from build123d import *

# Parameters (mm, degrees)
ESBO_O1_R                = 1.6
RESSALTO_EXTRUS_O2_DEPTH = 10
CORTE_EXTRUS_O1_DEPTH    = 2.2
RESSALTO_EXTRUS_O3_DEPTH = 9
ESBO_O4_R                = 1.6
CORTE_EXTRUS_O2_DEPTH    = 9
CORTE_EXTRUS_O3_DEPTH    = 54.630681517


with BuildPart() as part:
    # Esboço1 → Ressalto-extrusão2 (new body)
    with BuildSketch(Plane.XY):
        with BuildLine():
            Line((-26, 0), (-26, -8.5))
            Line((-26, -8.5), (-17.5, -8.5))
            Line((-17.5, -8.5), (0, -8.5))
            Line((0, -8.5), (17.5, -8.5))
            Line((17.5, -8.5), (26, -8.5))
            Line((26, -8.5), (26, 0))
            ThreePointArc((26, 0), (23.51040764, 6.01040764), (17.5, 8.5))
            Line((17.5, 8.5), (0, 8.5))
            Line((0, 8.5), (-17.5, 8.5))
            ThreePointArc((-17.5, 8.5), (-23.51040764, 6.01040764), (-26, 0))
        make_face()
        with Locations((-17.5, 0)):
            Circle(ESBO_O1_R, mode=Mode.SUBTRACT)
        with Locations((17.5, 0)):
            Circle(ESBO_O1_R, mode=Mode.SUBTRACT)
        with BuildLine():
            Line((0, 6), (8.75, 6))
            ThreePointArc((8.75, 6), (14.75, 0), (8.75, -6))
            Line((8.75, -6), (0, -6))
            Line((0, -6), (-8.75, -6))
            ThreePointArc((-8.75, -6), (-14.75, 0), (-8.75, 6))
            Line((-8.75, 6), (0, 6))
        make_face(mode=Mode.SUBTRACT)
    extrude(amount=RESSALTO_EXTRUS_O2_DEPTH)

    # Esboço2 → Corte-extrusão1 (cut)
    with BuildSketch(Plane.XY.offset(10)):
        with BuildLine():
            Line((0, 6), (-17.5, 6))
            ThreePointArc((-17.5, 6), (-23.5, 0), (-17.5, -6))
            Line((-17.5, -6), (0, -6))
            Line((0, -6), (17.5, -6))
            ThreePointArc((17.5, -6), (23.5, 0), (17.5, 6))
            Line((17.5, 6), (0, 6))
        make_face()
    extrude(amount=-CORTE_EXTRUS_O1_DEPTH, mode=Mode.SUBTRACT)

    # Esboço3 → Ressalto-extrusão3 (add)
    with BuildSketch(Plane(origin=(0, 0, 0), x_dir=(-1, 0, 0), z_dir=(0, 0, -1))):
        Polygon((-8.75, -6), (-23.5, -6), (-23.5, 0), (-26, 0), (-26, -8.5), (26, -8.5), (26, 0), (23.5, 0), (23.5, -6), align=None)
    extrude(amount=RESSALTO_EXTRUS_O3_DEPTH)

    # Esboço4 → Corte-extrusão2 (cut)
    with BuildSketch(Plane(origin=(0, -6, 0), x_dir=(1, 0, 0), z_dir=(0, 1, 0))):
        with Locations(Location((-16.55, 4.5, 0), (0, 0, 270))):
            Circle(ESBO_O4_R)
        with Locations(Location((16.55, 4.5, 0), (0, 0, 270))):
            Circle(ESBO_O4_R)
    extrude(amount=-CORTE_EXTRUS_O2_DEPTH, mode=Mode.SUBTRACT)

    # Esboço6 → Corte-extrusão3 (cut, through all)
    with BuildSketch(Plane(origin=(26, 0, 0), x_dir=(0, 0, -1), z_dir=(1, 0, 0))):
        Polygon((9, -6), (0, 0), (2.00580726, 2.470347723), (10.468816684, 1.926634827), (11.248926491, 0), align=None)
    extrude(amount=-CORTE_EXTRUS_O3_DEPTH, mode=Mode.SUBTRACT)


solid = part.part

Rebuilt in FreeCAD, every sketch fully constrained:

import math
import FreeCAD as App
import Part
import Sketcher

V = App.Vector


def add_polygon(sketch, points):
    """Adds a closed chain of lines whose ends are joined by coincident constraints."""
    first, n = sketch.GeometryCount, len(points)
    for a, b in zip(points, points[1:] + points[:1]):
        sketch.addGeometry(Part.LineSegment(App.Vector(*a, 0), App.Vector(*b, 0)), False)
    for i in range(n):
        sketch.addConstraint(Sketcher.Constraint("Coincident", first + i, 2, first + (i + 1) % n, 1))

doc = App.newDocument("Part")
body = doc.addObject("PartDesign::Body", "Body")

# Sketch on XY plane
sketch1 = body.newObject("Sketcher::SketchObject", "Sketch")
sketch1.AttachmentSupport = (doc.getObject("XY_Plane"), [""])
sketch1.MapMode = "FlatFace"
sketch1.addGeometry(Part.LineSegment(V(-26, 0, 0), V(-26, -8.5, 0)), False)
sketch1.addGeometry(Part.LineSegment(V(-26, -8.5, 0), V(26, -8.5, 0)), False)
sketch1.addGeometry(Part.LineSegment(V(26, -8.5, 0), V(26, 0, 0)), False)
sketch1.addGeometry(Part.ArcOfCircle(Part.Circle(V(17.5, 0, 0), V(0, 0, 1), 8.5), math.radians(0), math.radians(90)), False)
sketch1.addGeometry(Part.LineSegment(V(17.5, 8.5, 0), V(-17.5, 8.5, 0)), False)
sketch1.addGeometry(Part.ArcOfCircle(Part.Circle(V(-17.5, 0, 0), V(0, 0, 1), 8.5), math.radians(90), math.radians(180)), False)
sketch1.addGeometry(Part.Circle(V(-17.5, 0, 0), V(0, 0, 1), 1.6), False)
sketch1.addGeometry(Part.LineSegment(V(-8.75, 6, 0), V(8.75, 6, 0)), False)
sketch1.addGeometry(Part.ArcOfCircle(Part.Circle(V(8.75, 0, 0), V(0, 0, 1), 6), math.radians(-90), math.radians(90)), False)
sketch1.addGeometry(Part.LineSegment(V(8.75, -6, 0), V(-8.75, -6, 0)), False)
sketch1.addGeometry(Part.ArcOfCircle(Part.Circle(V(-8.75, 0, 0), V(0, 0, 1), 6), math.radians(90), math.radians(270)), False)
sketch1.addGeometry(Part.Circle(V(17.5, 0, 0), V(0, 0, 1), 1.6), False)
sketch1.addConstraint(Sketcher.Constraint("Coincident", 0, 2, 1, 1))
sketch1.addConstraint(Sketcher.Constraint("Coincident", 1, 2, 2, 1))
sketch1.addConstraint(Sketcher.Constraint("Tangent", 2, 2, 3, 1))
sketch1.addConstraint(Sketcher.Constraint("Tangent", 3, 2, 4, 1))
sketch1.addConstraint(Sketcher.Constraint("Tangent", 4, 2, 5, 1))
sketch1.addConstraint(Sketcher.Constraint("Tangent", 5, 2, 0, 1))
sketch1.addConstraint(Sketcher.Constraint("Tangent", 7, 2, 8, 2))
sketch1.addConstraint(Sketcher.Constraint("Tangent", 8, 1, 9, 1))
sketch1.addConstraint(Sketcher.Constraint("Tangent", 9, 2, 10, 2))
sketch1.addConstraint(Sketcher.Constraint("Tangent", 10, 1, 7, 1))
sketch1.addConstraint(Sketcher.Constraint("Vertical", 0))
sketch1.addConstraint(Sketcher.Constraint("Horizontal", 1))
sketch1.addConstraint(Sketcher.Constraint("Vertical", 2))
sketch1.addConstraint(Sketcher.Constraint("Horizontal", 4))
sketch1.addConstraint(Sketcher.Constraint("Horizontal", 7))
sketch1.addConstraint(Sketcher.Constraint("Horizontal", 9))
sketch1.addConstraint(Sketcher.Constraint("Coincident", 6, 3, 5, 3))
sketch1.addConstraint(Sketcher.Constraint("Coincident", 11, 3, 3, 3))
sketch1.addConstraint(Sketcher.Constraint("Equal", 3, 5))
sketch1.addConstraint(Sketcher.Constraint("Equal", 6, 11))
sketch1.addConstraint(Sketcher.Constraint("Symmetric", 3, 3, 5, 3, -1, 1))
sketch1.addConstraint(Sketcher.Constraint("Symmetric", 8, 3, 10, 3, -1, 1))
sketch1.addConstraint(Sketcher.Constraint("Radius", 8, 6.0))
sketch1.addConstraint(Sketcher.Constraint("Diameter", 6, 3.2))
sketch1.addConstraint(Sketcher.Constraint("Radius", 3, 8.5))
sketch1.addConstraint(Sketcher.Constraint("DistanceX", 1, 1, 1, 2, 52.0))
sketch1.addConstraint(Sketcher.Constraint("DistanceX", 7, 1, 7, 2, 17.5))
sketch1.addConstraint(Sketcher.Constraint("DistanceY", 0, 2, 0, 1, 8.5))
pad1 = body.newObject("PartDesign::Pad", "Pad")
pad1.Profile = sketch1
pad1.Length = 10

# Sketch on XY plane
sketch2 = body.newObject("Sketcher::SketchObject", "Sketch001")
sketch2.AttachmentSupport = (doc.getObject("XY_Plane"), [""])
sketch2.MapMode = "FlatFace"
sketch2.AttachmentOffset = App.Placement(V(0, 0, 10), App.Rotation())
sketch2.addGeometry(Part.ArcOfCircle(Part.Circle(V(-17.5, 0, 0), V(0, 0, 1), 6), math.radians(90), math.radians(270)), False)
sketch2.addGeometry(Part.LineSegment(V(-17.5, -6, 0), V(17.5, -6, 0)), False)
sketch2.addGeometry(Part.ArcOfCircle(Part.Circle(V(17.5, 0, 0), V(0, 0, 1), 6), math.radians(-90), math.radians(90)), False)
sketch2.addGeometry(Part.LineSegment(V(17.5, 6, 0), V(-17.5, 6, 0)), False)
sketch2.addConstraint(Sketcher.Constraint("Tangent", 0, 2, 1, 1))
sketch2.addConstraint(Sketcher.Constraint("Tangent", 1, 2, 2, 1))
sketch2.addConstraint(Sketcher.Constraint("Tangent", 2, 2, 3, 1))
sketch2.addConstraint(Sketcher.Constraint("Tangent", 3, 2, 0, 1))
sketch2.addConstraint(Sketcher.Constraint("Horizontal", 1))
sketch2.addConstraint(Sketcher.Constraint("Horizontal", 3))
sketch2.addConstraint(Sketcher.Constraint("Symmetric", 0, 3, 2, 3, -1, 1))
sketch2.addConstraint(Sketcher.Constraint("Radius", 0, 6.0))
sketch2.addConstraint(Sketcher.Constraint("DistanceX", 1, 1, 1, 2, 35.0))
pocket1 = body.newObject("PartDesign::Pocket", "Pocket")
pocket1.Profile = sketch2
pocket1.Length = 2.2

# Sketch on XY plane
sketch3 = body.newObject("Sketcher::SketchObject", "Sketch002")
sketch3.AttachmentSupport = (doc.getObject("XY_Plane"), [""])
sketch3.MapMode = "FlatFace"
add_polygon(sketch3, [(23.5, -6), (23.5, 0), (26, 0), (26, -8.5), (-26, -8.5), (-26, 0), (-23.5, 0), (-23.5, -6)])  # lines 0-7
sketch3.addConstraint(Sketcher.Constraint("Vertical", 0))
sketch3.addConstraint(Sketcher.Constraint("Horizontal", 1))
sketch3.addConstraint(Sketcher.Constraint("Vertical", 2))
sketch3.addConstraint(Sketcher.Constraint("Horizontal", 3))
sketch3.addConstraint(Sketcher.Constraint("Vertical", 4))
sketch3.addConstraint(Sketcher.Constraint("Horizontal", 5))
sketch3.addConstraint(Sketcher.Constraint("Vertical", 6))
sketch3.addConstraint(Sketcher.Constraint("Horizontal", 7))
sketch3.addConstraint(Sketcher.Constraint("Symmetric", 1, 2, 4, 2, -1, 1))
sketch3.addConstraint(Sketcher.Constraint("Symmetric", 0, 2, 5, 2, -2))
sketch3.addConstraint(Sketcher.Constraint("DistanceX", 3, 2, 3, 1, 52.0))
sketch3.addConstraint(Sketcher.Constraint("DistanceX", 7, 1, 7, 2, 47.0))
sketch3.addConstraint(Sketcher.Constraint("DistanceY", 0, 1, 0, 2, 6.0))
sketch3.addConstraint(Sketcher.Constraint("DistanceY", 2, 2, 2, 1, 8.5))
pad2 = body.newObject("PartDesign::Pad", "Pad001")
pad2.Profile = sketch3
pad2.Length = 9
pad2.Reversed = True

# Sketch on XZ plane
sketch4 = body.newObject("Sketcher::SketchObject", "Sketch003")
sketch4.AttachmentSupport = (doc.getObject("XZ_Plane"), [""])
sketch4.MapMode = "FlatFace"
sketch4.AttachmentOffset = App.Placement(V(0, 0, 6), App.Rotation())
sketch4.addGeometry(Part.Circle(V(-16.55, -4.5, 0), V(0, 0, 1), 1.6), False)
sketch4.addGeometry(Part.Circle(V(16.55, -4.5, 0), V(0, 0, 1), 1.6), False)
sketch4.addConstraint(Sketcher.Constraint("Equal", 0, 1))
sketch4.addConstraint(Sketcher.Constraint("Symmetric", 0, 3, 1, 3, -2))
sketch4.addConstraint(Sketcher.Constraint("Diameter", 0, 3.2))
sketch4.addConstraint(Sketcher.Constraint("DistanceY", 0, 3, -1, 1, 4.5))
sketch4.addConstraint(Sketcher.Constraint("DistanceX", 0, 3, 1, 3, 33.1))
pocket2 = body.newObject("PartDesign::Pocket", "Pocket001")
pocket2.Profile = sketch4
pocket2.Length = 9
pocket2.Reversed = True

# Sketch on YZ plane
sketch5 = body.newObject("Sketcher::SketchObject", "Sketch004")
sketch5.AttachmentSupport = (doc.getObject("YZ_Plane"), [""])
sketch5.MapMode = "FlatFace"
sketch5.AttachmentOffset = App.Placement(V(0, 0, 26), App.Rotation())
add_polygon(sketch5, [(0, 0), (-6, -9), (0, -11.248926), (1.926635, -10.468817), (2.470348, -2.005807)])  # lines 0-4
sketch5.addConstraint(Sketcher.Constraint("Coincident", 4, 2, -1, 1))
sketch5.addConstraint(Sketcher.Constraint("PointOnObject", 1, 2, -2))
sketch5.addConstraint(Sketcher.Constraint("DistanceX", 0, 2, -1, 1, 6.0))
sketch5.addConstraint(Sketcher.Constraint("DistanceY", 0, 2, -1, 1, 9.0))
sketch5.addConstraint(Sketcher.Constraint("Distance", 2, 2.07858))
sketch5.addConstraint(Sketcher.Constraint("Distance", 4, 3.182119))
sketch5.addConstraint(Sketcher.Constraint("DistanceY", 1, 2, 2, 2, 0.78011))
sketch5.addConstraint(Sketcher.Constraint("DistanceY", 2, 2, 3, 2, 8.463009))
sketch5.addConstraint(Sketcher.Constraint("Distance", 1, 6.407626))
pocket3 = body.newObject("PartDesign::Pocket", "Pocket002")
pocket3.Profile = sketch5
pocket3.Type = "ThroughAll"

doc.recompute()
